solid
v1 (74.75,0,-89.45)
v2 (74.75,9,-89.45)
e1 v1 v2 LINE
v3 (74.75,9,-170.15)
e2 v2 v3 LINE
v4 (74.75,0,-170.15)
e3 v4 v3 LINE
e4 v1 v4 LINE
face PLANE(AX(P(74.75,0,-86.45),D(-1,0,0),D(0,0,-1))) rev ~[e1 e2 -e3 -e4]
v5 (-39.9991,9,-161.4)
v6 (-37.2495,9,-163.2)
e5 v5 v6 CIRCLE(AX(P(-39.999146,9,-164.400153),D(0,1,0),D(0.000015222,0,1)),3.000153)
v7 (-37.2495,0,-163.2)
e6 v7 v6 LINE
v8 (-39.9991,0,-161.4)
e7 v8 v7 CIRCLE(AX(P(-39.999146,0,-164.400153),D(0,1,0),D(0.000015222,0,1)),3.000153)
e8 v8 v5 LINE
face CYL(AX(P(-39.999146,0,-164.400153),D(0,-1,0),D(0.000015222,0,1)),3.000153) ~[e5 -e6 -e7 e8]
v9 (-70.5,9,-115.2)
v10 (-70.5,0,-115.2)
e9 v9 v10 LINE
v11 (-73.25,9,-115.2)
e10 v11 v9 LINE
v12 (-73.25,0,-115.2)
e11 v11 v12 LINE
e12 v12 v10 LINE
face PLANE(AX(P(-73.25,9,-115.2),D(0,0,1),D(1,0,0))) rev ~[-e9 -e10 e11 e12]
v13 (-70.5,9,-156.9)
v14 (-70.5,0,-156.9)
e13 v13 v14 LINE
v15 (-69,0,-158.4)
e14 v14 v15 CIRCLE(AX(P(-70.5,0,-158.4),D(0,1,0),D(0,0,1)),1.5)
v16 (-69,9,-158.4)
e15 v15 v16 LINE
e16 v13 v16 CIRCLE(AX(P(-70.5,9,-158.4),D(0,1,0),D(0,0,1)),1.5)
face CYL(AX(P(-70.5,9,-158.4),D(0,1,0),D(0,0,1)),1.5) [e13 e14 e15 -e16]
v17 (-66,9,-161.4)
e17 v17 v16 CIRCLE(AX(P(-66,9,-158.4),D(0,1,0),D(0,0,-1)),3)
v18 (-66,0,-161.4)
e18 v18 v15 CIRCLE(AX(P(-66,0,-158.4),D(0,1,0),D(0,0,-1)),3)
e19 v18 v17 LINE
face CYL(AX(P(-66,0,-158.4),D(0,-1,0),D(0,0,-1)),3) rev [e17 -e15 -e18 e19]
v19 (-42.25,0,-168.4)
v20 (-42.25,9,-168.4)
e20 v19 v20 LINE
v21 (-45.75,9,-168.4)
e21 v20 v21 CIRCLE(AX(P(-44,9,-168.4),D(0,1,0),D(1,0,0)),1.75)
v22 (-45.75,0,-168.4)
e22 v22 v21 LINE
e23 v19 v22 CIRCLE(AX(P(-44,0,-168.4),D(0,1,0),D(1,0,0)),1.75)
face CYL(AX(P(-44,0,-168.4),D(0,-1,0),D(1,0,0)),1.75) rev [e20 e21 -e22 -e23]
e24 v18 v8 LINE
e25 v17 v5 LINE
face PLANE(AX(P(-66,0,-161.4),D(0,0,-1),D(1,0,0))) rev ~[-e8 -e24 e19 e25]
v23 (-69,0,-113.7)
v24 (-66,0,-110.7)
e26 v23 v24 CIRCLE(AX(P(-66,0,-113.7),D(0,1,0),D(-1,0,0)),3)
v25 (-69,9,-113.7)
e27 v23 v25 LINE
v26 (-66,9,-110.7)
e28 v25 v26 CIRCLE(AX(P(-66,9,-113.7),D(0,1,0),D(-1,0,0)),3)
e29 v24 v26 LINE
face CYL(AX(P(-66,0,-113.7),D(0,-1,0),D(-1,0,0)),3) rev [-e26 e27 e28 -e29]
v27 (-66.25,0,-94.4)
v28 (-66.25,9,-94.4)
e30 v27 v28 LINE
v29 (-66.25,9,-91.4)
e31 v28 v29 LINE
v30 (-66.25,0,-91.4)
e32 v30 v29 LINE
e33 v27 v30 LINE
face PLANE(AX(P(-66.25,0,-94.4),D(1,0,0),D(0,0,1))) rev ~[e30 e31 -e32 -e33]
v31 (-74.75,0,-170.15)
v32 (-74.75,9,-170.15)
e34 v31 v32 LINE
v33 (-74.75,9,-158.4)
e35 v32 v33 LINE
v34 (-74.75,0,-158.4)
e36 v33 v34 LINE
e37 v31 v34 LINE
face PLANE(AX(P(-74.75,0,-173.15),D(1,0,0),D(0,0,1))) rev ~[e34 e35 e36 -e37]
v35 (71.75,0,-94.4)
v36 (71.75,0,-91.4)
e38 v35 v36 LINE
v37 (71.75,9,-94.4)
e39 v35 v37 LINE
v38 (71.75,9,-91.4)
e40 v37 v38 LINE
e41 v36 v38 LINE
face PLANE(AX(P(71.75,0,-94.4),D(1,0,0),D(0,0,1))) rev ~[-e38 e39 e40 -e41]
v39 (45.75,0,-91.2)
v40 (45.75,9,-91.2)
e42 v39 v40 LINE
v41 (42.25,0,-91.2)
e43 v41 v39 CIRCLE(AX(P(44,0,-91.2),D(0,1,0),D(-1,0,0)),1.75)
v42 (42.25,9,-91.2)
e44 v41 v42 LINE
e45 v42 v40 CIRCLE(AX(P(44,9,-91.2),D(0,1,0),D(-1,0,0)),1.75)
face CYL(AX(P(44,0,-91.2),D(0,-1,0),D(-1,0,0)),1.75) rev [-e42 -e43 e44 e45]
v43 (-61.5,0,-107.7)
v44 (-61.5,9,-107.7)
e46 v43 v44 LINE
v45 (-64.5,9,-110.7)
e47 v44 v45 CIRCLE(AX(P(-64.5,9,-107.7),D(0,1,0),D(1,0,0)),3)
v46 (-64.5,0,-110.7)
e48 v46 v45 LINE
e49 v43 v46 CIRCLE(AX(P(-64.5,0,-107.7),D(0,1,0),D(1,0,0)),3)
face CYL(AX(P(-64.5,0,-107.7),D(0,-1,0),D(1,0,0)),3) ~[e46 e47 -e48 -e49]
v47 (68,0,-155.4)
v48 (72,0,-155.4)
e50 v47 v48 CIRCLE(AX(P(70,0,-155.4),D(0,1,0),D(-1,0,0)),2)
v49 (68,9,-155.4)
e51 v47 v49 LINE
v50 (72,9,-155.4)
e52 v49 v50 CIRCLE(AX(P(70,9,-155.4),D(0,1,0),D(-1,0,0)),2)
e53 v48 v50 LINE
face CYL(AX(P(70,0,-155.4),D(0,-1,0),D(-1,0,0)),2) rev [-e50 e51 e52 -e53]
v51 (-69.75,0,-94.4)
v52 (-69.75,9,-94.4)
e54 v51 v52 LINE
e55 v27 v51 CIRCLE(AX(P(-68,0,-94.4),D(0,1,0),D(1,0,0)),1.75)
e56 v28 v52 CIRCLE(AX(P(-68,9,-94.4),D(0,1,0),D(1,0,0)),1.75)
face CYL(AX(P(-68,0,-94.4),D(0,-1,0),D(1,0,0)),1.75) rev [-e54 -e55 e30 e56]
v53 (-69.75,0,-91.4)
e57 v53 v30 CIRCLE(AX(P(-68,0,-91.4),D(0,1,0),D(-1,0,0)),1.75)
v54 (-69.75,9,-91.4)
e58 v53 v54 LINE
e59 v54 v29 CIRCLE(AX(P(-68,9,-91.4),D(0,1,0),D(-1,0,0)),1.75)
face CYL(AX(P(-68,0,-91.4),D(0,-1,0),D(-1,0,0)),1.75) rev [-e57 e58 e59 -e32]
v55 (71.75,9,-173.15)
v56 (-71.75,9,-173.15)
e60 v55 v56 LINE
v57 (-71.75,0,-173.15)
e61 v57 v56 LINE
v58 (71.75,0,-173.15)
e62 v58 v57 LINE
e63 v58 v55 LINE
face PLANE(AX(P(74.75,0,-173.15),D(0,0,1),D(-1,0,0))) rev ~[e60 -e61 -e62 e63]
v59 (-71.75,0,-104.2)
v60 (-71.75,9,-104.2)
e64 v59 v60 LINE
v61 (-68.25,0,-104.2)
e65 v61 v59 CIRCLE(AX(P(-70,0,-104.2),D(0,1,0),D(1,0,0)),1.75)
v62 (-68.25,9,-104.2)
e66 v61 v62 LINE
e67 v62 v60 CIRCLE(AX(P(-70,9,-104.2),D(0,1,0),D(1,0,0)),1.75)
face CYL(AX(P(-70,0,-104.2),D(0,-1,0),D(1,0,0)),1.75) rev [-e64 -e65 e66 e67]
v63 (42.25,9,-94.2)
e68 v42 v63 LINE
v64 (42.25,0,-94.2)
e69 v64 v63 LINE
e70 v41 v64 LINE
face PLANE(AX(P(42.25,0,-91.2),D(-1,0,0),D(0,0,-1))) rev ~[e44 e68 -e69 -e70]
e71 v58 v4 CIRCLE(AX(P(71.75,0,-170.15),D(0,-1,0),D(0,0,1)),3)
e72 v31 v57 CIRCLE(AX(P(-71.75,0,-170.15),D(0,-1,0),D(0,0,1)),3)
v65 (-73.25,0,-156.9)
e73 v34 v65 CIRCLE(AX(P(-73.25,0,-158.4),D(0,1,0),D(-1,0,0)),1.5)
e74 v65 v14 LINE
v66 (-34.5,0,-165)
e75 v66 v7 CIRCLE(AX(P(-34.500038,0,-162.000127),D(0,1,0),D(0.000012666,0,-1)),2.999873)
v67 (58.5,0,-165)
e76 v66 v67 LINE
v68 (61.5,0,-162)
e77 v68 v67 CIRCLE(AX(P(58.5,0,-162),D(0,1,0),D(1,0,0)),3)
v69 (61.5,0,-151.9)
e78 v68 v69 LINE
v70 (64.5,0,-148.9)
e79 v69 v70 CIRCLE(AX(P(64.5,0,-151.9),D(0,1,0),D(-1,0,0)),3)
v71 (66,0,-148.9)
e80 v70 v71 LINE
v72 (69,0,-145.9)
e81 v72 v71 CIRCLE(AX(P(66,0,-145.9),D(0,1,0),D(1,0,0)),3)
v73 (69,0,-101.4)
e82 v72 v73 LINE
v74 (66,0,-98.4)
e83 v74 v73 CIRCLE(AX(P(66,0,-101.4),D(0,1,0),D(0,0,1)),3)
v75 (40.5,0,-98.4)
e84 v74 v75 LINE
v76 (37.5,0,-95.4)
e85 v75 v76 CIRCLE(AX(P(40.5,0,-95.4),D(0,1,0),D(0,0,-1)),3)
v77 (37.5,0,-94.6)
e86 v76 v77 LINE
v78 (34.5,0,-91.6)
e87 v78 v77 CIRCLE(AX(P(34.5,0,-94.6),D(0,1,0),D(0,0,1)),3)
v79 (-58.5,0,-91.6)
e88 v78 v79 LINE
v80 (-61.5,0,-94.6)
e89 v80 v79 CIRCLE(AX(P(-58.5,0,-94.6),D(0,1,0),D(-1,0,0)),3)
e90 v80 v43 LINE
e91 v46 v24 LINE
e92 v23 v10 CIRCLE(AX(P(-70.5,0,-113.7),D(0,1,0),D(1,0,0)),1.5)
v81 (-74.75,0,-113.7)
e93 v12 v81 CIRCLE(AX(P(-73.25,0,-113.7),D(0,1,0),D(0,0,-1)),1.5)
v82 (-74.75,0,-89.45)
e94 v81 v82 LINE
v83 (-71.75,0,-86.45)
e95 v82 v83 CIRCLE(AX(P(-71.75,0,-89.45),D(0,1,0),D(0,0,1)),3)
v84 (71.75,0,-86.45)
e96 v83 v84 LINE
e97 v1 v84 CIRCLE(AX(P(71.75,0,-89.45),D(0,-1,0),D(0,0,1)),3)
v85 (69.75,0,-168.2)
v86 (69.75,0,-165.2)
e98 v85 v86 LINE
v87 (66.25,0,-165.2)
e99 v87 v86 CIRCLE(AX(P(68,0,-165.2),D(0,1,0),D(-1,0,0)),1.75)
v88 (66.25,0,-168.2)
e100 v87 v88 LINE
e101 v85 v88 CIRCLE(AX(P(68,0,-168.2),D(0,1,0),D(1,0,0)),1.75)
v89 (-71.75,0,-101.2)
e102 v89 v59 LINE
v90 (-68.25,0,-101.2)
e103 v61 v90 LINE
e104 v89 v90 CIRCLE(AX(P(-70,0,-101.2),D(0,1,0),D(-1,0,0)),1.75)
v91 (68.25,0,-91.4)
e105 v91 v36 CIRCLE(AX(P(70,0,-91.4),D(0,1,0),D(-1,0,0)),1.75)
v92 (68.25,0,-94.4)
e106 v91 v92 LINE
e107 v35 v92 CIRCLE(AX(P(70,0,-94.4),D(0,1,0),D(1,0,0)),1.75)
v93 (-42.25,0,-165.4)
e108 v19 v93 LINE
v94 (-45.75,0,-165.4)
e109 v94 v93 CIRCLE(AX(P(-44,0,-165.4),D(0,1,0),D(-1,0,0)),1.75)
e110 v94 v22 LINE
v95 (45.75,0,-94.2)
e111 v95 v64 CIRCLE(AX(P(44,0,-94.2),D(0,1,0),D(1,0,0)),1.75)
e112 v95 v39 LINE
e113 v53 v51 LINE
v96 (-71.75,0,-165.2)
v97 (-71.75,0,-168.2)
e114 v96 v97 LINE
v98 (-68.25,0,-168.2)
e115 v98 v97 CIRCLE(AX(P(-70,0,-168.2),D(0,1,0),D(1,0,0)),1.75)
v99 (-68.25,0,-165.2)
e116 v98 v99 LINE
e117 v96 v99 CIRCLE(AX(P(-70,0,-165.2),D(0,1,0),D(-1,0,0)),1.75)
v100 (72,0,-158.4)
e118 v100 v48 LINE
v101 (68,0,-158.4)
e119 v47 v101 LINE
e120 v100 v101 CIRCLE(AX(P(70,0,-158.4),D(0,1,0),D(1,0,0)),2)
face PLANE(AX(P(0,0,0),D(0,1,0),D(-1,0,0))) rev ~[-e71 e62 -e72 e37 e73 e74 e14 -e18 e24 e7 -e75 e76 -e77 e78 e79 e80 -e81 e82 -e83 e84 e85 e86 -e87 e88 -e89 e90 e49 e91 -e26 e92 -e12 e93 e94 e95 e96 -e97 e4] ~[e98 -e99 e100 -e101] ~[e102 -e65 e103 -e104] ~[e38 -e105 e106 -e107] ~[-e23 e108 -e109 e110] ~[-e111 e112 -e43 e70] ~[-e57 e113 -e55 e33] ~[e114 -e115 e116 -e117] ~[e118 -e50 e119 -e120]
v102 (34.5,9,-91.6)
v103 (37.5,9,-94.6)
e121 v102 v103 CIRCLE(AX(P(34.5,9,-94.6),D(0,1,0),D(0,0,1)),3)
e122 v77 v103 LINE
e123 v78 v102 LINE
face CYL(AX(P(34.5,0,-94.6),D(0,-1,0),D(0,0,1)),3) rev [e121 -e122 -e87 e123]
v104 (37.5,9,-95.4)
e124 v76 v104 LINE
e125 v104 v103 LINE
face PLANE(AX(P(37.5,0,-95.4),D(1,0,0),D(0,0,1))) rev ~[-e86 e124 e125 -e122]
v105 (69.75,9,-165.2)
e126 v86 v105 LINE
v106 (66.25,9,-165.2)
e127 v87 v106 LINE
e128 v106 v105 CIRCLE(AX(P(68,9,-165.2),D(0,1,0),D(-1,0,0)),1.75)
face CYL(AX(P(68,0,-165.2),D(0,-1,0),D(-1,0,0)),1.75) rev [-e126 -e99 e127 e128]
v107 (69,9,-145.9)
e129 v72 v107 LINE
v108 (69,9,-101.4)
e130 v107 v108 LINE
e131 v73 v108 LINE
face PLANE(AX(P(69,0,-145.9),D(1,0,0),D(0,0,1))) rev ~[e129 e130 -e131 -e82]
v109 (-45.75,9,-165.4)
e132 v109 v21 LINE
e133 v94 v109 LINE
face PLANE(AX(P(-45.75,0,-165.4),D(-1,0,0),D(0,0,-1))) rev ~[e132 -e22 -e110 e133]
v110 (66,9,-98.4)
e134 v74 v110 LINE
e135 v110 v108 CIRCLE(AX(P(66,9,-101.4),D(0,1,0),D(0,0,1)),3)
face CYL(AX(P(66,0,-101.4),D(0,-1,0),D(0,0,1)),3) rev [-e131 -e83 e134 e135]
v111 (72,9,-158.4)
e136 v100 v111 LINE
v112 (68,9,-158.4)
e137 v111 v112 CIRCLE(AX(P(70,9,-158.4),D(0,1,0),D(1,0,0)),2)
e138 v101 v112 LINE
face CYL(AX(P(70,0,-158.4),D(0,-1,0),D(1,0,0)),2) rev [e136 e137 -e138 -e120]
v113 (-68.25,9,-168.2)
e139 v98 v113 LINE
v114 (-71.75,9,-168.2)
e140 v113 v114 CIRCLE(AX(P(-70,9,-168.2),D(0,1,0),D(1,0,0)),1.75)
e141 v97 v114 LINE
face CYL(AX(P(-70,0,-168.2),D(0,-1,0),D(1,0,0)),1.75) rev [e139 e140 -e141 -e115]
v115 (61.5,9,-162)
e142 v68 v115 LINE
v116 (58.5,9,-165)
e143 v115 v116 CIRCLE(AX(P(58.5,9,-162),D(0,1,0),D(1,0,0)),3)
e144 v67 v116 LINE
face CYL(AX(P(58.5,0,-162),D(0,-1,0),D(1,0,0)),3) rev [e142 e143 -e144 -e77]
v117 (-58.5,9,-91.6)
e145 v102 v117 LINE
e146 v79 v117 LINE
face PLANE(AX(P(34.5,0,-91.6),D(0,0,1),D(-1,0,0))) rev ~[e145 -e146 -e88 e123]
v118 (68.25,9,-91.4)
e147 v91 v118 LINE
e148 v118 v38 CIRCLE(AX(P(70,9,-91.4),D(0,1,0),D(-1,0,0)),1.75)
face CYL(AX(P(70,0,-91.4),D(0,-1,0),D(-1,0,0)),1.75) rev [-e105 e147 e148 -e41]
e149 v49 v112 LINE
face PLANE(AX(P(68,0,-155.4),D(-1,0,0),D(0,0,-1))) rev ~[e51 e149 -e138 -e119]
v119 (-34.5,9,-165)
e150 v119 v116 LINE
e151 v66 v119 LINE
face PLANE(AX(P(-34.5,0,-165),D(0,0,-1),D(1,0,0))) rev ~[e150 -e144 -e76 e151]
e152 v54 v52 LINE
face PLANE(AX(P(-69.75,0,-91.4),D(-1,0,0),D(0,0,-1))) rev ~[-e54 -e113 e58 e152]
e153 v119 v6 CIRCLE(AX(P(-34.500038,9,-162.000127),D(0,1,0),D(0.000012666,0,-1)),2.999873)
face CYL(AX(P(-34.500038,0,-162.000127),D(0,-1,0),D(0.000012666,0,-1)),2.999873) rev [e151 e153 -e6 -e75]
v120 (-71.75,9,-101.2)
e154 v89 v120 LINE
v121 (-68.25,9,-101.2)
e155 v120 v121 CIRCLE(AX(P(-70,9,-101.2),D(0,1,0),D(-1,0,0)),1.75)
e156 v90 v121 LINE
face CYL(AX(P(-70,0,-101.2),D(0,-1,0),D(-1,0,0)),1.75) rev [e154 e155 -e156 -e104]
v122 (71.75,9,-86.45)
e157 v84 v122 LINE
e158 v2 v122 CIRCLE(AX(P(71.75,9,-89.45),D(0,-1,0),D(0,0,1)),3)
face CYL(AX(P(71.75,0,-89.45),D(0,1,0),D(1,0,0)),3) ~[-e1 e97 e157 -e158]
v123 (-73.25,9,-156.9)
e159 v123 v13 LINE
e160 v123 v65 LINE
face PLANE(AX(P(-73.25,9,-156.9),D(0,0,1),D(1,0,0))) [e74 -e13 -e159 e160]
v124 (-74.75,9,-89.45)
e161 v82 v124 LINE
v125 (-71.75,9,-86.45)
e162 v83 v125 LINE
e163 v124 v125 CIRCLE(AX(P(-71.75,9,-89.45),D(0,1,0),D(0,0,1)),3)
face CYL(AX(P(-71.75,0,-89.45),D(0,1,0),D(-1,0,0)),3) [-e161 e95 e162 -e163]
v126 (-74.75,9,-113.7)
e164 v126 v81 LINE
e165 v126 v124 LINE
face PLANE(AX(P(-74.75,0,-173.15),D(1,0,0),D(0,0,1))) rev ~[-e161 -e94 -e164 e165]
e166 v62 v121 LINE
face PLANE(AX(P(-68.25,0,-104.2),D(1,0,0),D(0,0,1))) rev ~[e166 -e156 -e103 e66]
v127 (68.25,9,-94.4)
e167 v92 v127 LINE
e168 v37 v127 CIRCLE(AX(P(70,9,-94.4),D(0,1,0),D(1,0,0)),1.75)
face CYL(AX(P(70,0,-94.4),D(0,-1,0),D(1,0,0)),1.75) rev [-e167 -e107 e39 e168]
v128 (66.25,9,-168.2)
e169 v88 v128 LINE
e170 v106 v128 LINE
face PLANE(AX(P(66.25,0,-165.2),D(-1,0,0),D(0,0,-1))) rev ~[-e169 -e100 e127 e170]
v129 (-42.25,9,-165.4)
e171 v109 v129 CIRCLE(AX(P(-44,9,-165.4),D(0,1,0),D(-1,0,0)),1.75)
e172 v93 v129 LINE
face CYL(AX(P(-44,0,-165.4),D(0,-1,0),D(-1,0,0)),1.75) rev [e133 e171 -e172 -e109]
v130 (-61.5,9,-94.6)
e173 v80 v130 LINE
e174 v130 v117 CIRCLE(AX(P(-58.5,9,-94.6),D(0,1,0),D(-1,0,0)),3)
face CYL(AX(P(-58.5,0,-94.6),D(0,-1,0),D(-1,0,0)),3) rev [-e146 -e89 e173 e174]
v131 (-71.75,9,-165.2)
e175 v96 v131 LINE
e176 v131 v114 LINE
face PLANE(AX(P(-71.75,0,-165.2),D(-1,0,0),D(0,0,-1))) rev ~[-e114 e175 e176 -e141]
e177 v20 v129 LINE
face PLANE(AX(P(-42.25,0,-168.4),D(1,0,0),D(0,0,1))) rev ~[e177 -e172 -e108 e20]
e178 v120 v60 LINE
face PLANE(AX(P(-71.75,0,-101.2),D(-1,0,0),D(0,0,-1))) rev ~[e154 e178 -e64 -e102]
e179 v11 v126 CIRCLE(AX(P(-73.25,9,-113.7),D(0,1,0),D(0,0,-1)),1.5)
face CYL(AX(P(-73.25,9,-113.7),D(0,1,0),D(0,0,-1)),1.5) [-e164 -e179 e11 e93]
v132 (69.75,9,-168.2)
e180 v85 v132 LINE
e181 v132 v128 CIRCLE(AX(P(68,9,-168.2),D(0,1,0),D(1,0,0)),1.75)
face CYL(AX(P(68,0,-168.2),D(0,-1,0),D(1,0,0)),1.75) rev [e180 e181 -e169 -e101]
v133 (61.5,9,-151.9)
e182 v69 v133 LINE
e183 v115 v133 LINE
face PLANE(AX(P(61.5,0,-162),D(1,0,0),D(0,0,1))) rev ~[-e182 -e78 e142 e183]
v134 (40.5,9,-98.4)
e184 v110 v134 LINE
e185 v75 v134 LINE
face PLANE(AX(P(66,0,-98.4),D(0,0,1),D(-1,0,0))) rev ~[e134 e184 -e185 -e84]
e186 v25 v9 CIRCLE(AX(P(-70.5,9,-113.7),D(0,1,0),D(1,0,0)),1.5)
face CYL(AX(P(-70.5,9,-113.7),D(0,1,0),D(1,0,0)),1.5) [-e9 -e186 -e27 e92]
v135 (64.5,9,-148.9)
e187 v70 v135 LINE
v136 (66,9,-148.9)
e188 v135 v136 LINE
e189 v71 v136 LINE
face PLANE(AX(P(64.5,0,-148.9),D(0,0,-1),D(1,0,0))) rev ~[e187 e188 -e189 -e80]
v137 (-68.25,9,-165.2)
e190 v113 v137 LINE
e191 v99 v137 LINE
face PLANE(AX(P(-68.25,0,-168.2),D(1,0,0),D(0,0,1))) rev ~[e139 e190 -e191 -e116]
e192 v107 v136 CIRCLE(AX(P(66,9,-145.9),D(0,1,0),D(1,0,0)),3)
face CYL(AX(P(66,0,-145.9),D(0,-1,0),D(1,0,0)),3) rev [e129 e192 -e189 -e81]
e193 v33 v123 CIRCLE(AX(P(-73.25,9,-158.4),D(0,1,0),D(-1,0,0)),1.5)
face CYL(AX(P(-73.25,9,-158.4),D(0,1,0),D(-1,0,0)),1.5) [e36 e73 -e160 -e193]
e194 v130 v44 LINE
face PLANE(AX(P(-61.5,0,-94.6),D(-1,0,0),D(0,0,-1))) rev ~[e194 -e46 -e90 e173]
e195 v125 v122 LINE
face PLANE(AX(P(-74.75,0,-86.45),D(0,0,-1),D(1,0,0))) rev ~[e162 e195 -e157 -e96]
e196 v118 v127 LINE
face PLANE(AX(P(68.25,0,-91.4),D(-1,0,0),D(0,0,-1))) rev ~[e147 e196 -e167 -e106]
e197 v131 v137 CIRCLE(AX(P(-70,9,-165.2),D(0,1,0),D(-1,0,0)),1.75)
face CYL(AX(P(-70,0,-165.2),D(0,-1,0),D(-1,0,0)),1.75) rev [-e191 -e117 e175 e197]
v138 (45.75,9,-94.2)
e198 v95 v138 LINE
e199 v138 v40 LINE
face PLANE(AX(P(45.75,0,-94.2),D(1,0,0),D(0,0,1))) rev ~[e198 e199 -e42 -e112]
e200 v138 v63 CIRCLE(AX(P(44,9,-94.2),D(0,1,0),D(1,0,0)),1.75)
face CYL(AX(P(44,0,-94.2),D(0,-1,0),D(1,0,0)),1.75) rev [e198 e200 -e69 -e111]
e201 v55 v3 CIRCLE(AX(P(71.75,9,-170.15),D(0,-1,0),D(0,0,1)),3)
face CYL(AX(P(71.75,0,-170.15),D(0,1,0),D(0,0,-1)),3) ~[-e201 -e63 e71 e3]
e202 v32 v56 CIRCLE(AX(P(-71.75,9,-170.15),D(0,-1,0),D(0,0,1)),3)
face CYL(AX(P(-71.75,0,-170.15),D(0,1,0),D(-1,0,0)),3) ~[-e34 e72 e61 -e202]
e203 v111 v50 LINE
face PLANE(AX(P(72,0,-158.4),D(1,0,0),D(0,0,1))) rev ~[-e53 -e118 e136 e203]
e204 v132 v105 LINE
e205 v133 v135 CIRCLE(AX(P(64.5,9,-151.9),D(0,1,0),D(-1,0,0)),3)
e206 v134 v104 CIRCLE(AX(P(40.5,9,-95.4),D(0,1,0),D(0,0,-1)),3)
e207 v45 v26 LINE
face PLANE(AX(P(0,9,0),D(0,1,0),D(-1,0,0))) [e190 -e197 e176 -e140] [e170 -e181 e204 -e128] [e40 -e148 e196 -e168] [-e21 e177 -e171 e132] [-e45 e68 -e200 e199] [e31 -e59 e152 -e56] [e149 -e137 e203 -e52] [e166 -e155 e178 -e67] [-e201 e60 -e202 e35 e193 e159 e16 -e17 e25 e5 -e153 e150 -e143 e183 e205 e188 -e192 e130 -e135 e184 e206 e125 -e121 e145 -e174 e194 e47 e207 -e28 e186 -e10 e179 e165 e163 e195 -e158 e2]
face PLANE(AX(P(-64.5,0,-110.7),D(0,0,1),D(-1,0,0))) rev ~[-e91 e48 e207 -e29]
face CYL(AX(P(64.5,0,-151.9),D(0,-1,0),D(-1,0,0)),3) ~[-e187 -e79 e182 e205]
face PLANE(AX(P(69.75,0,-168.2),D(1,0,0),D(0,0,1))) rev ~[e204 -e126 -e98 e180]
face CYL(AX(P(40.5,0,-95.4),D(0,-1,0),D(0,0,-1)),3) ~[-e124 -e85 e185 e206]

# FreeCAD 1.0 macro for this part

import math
import FreeCAD as App
import Part
import Sketcher


def edges_at(feature, points):
    """Names of the edges that pass closest to the given points."""
    edges = feature.Shape.Edges
    near = lambda p: min(range(len(edges)), key=lambda i: edges[i].distToShape(Part.Vertex(*p))[0])
    return sorted({f"Edge{near(p) + 1}" for p in points})

doc = App.newDocument("Part")
params = doc.addObject("Spreadsheet::Sheet", "Params")
for row, (alias, value) in enumerate([
    ("sketch1_radius", "2 mm"),
    ("sketch1_radius2", "3 mm"),
    ("sketch1_height", "3 mm"),
    ("sketch1_radius3", "1.75 mm"),
    ("sketch1_height2", "44.7 mm"),
    ("pad1_length", "9 mm"),
    ("fillet_radius", "3 mm"),
    ("sketch2_radius", "1.5 mm"),
    ("sketch2_height", "44.7 mm"),
    ("sketch2_width", "2.75 mm"),
    ("pocket1_length", "9 mm"),
], start=1):
    params.set(f"A{row}", alias)
    params.set(f"B{row}", "=" + value)
    params.setAlias(f"B{row}", alias)

body = doc.addObject("PartDesign::Body", "Body")

# Sketch on XZ plane
sketch1 = body.newObject("Sketcher::SketchObject", "Sketch")
sketch1.AttachmentSupport = (doc.getObject("XZ_Plane"), [""])
sketch1.MapMode = "FlatFace"
sketch1.addGeometry(Part.LineSegment(App.Vector(-74.8, -173.2, 0), App.Vector(-74.8, -86.5, 0)), False)
sketch1.addGeometry(Part.LineSegment(App.Vector(-74.8, -86.5, 0), App.Vector(74.8, -86.5, 0)), False)
sketch1.addGeometry(Part.LineSegment(App.Vector(74.8, -86.5, 0), App.Vector(74.8, -173.2, 0)), False)
sketch1.addGeometry(Part.LineSegment(App.Vector(74.8, -173.2, 0), App.Vector(-74.8, -173.2, 0)), False)
sketch1.addGeometry(Part.ArcOfCircle(Part.Circle(App.Vector(68, -165.2, 0), App.Vector(0, 0, 1), 1.8), math.radians(0), math.radians(180)), False)
sketch1.addGeometry(Part.LineSegment(App.Vector(66.2, -165.2, 0), App.Vector(66.2, -168.2, 0)), False)
sketch1.addGeometry(Part.ArcOfCircle(Part.Circle(App.Vector(68, -168.2, 0), App.Vector(0, 0, 1), 1.8), math.radians(180), math.radians(360)), False)
sketch1.addGeometry(Part.LineSegment(App.Vector(69.8, -168.2, 0), App.Vector(69.8, -165.2, 0)), False)
sketch1.addGeometry(Part.ArcOfCircle(Part.Circle(App.Vector(70, -155.4, 0), App.Vector(0, 0, 1), 2), math.radians(0), math.radians(180)), False)
sketch1.addGeometry(Part.LineSegment(App.Vector(68, -155.4, 0), App.Vector(68, -158.4, 0)), False)
sketch1.addGeometry(Part.ArcOfCircle(Part.Circle(App.Vector(70, -158.4, 0), App.Vector(0, 0, 1), 2), math.radians(180), math.radians(360)), False)
sketch1.addGeometry(Part.LineSegment(App.Vector(72, -158.4, 0), App.Vector(72, -155.4, 0)), False)
sketch1.addGeometry(Part.ArcOfCircle(Part.Circle(App.Vector(-44, -165.4, 0), App.Vector(0, 0, 1), 1.8), math.radians(0), math.radians(180)), False)
sketch1.addGeometry(Part.LineSegment(App.Vector(-45.8, -165.4, 0), App.Vector(-45.8, -168.4, 0)), False)
sketch1.addGeometry(Part.ArcOfCircle(Part.Circle(App.Vector(-44, -168.4, 0), App.Vector(0, 0, 1), 1.8), math.radians(180), math.radians(360)), False)
sketch1.addGeometry(Part.LineSegment(App.Vector(-42.2, -168.4, 0), App.Vector(-42.2, -165.4, 0)), False)
sketch1.addGeometry(Part.ArcOfCircle(Part.Circle(App.Vector(-70, -165.2, 0), App.Vector(0, 0, 1), 1.8), math.radians(0), math.radians(180)), False)
sketch1.addGeometry(Part.LineSegment(App.Vector(-71.8, -165.2, 0), App.Vector(-71.8, -168.2, 0)), False)
sketch1.addGeometry(Part.ArcOfCircle(Part.Circle(App.Vector(-70, -168.2, 0), App.Vector(0, 0, 1), 1.8), math.radians(180), math.radians(360)), False)
sketch1.addGeometry(Part.LineSegment(App.Vector(-68.2, -168.2, 0), App.Vector(-68.2, -165.2, 0)), False)
sketch1.addGeometry(Part.ArcOfCircle(Part.Circle(App.Vector(70, -94.4, 0), App.Vector(0, 0, 1), 1.8), math.radians(180), math.radians(360)), False)
sketch1.addGeometry(Part.LineSegment(App.Vector(71.8, -94.4, 0), App.Vector(71.8, -91.4, 0)), False)
sketch1.addGeometry(Part.ArcOfCircle(Part.Circle(App.Vector(70, -91.4, 0), App.Vector(0, 0, 1), 1.8), math.radians(0), math.radians(180)), False)
sketch1.addGeometry(Part.LineSegment(App.Vector(68.2, -91.4, 0), App.Vector(68.2, -94.4, 0)), False)
sketch1.addGeometry(Part.ArcOfCircle(Part.Circle(App.Vector(44, -94.2, 0), App.Vector(0, 0, 1), 1.8), math.radians(180), math.radians(360)), False)
sketch1.addGeometry(Part.LineSegment(App.Vector(45.8, -94.2, 0), App.Vector(45.8, -91.2, 0)), False)
sketch1.addGeometry(Part.ArcOfCircle(Part.Circle(App.Vector(44, -91.2, 0), App.Vector(0, 0, 1), 1.8), math.radians(0), math.radians(180)), False)
sketch1.addGeometry(Part.LineSegment(App.Vector(42.2, -91.2, 0), App.Vector(42.2, -94.2, 0)), False)
sketch1.addGeometry(Part.ArcOfCircle(Part.Circle(App.Vector(66, -145.9, 0), App.Vector(0, 0, 1), 3), math.radians(-90), math.radians(0)), False)
sketch1.addGeometry(Part.LineSegment(App.Vector(69, -145.9, 0), App.Vector(69, -101.4, 0)), False)
sketch1.addGeometry(Part.ArcOfCircle(Part.Circle(App.Vector(66, -101.4, 0), App.Vector(0, 0, 1), 3), math.radians(0), math.radians(90)), False)
sketch1.addGeometry(Part.LineSegment(App.Vector(66, -98.4, 0), App.Vector(40.5, -98.4, 0)), False)
sketch1.addGeometry(Part.ArcOfCircle(Part.Circle(App.Vector(40.5, -95.4, 0), App.Vector(0, 0, 1), 3), math.radians(180), math.radians(270)), False)
sketch1.addGeometry(Part.LineSegment(App.Vector(37.5, -95.4, 0), App.Vector(37.5, -94.6, 0)), False)
sketch1.addGeometry(Part.ArcOfCircle(Part.Circle(App.Vector(34.5, -94.6, 0), App.Vector(0, 0, 1), 3), math.radians(0), math.radians(90)), False)
sketch1.addGeometry(Part.LineSegment(App.Vector(34.5, -91.6, 0), App.Vector(-58.5, -91.6, 0)), False)
sketch1.addGeometry(Part.ArcOfCircle(Part.Circle(App.Vector(-58.5, -94.6, 0), App.Vector(0, 0, 1), 3), math.radians(90), math.radians(180)), False)
sketch1.addGeometry(Part.LineSegment(App.Vector(-61.5, -94.6, 0), App.Vector(-61.5, -107.7, 0)), False)
sketch1.addGeometry(Part.ArcOfCircle(Part.Circle(App.Vector(-64.5, -107.7, 0), App.Vector(0, 0, 1), 3), math.radians(-90), math.radians(0)), False)
sketch1.addGeometry(Part.LineSegment(App.Vector(-64.5, -110.7, 0), App.Vector(-66, -110.7, 0)), False)
sketch1.addGeometry(Part.ArcOfCircle(Part.Circle(App.Vector(-66, -113.7, 0), App.Vector(0, 0, 1), 3), math.radians(90), math.radians(180)), False)
sketch1.addGeometry(Part.LineSegment(App.Vector(-69, -113.7, 0), App.Vector(-69, -158.4, 0)), False)
sketch1.addGeometry(Part.ArcOfCircle(Part.Circle(App.Vector(-66, -158.4, 0), App.Vector(0, 0, 1), 3), math.radians(180), math.radians(270)), False)
sketch1.addGeometry(Part.LineSegment(App.Vector(-66, -161.4, 0), App.Vector(-40, -161.4, 0)), False)
sketch1.addGeometry(Part.ArcOfCircle(Part.Circle(App.Vector(-40, -164.4, 0), App.Vector(0, 0, 1), 3), math.radians(24), math.radians(90)), False)
sketch1.addGeometry(Part.ArcOfCircle(Part.Circle(App.Vector(-34.5, -162, 0), App.Vector(0, 0, 1), 3), math.radians(-156), math.radians(-90)), False)
sketch1.addGeometry(Part.LineSegment(App.Vector(-34.5, -165, 0), App.Vector(58.5, -165, 0)), False)
sketch1.addGeometry(Part.ArcOfCircle(Part.Circle(App.Vector(58.5, -162, 0), App.Vector(0, 0, 1), 3), math.radians(-90), math.radians(0)), False)
sketch1.addGeometry(Part.LineSegment(App.Vector(61.5, -162, 0), App.Vector(61.5, -151.9, 0)), False)
sketch1.addGeometry(Part.ArcOfCircle(Part.Circle(App.Vector(64.5, -151.9, 0), App.Vector(0, 0, 1), 3), math.radians(90), math.radians(180)), False)
sketch1.addGeometry(Part.LineSegment(App.Vector(64.5, -148.9, 0), App.Vector(66, -148.9, 0)), False)
sketch1.addGeometry(Part.ArcOfCircle(Part.Circle(App.Vector(-70, -101.2, 0), App.Vector(0, 0, 1), 1.8), math.radians(0), math.radians(180)), False)
sketch1.addGeometry(Part.LineSegment(App.Vector(-71.8, -101.2, 0), App.Vector(-71.8, -104.2, 0)), False)
sketch1.addGeometry(Part.ArcOfCircle(Part.Circle(App.Vector(-70, -104.2, 0), App.Vector(0, 0, 1), 1.8), math.radians(180), math.radians(360)), False)
sketch1.addGeometry(Part.LineSegment(App.Vector(-68.2, -104.2, 0), App.Vector(-68.2, -101.2, 0)), False)
sketch1.addGeometry(Part.ArcOfCircle(Part.Circle(App.Vector(-68, -94.4, 0), App.Vector(0, 0, 1), 1.8), math.radians(180), math.radians(360)), False)
sketch1.addGeometry(Part.LineSegment(App.Vector(-66.2, -94.4, 0), App.Vector(-66.2, -91.4, 0)), False)
sketch1.addGeometry(Part.ArcOfCircle(Part.Circle(App.Vector(-68, -91.4, 0), App.Vector(0, 0, 1), 1.8), math.radians(0), math.radians(180)), False)
sketch1.addGeometry(Part.LineSegment(App.Vector(-69.8, -91.4, 0), App.Vector(-69.8, -94.4, 0)), False)
sketch1.addConstraint(Sketcher.Constraint("Coincident", 0, 2, 1, 1))
sketch1.addConstraint(Sketcher.Constraint("Coincident", 1, 2, 2, 1))
sketch1.addConstraint(Sketcher.Constraint("Coincident", 2, 2, 3, 1))
sketch1.addConstraint(Sketcher.Constraint("Coincident", 3, 2, 0, 1))
sketch1.addConstraint(Sketcher.Constraint("Tangent", 4, 2, 5, 1))
sketch1.addConstraint(Sketcher.Constraint("Tangent", 5, 2, 6, 1))
sketch1.addConstraint(Sketcher.Constraint("Tangent", 6, 2, 7, 1))
sketch1.addConstraint(Sketcher.Constraint("Tangent", 7, 2, 4, 1))
sketch1.addConstraint(Sketcher.Constraint("Tangent", 8, 2, 9, 1))
sketch1.addConstraint(Sketcher.Constraint("Tangent", 9, 2, 10, 1))
sketch1.addConstraint(Sketcher.Constraint("Tangent", 10, 2, 11, 1))
sketch1.addConstraint(Sketcher.Constraint("Tangent", 11, 2, 8, 1))
sketch1.addConstraint(Sketcher.Constraint("Tangent", 12, 2, 13, 1))
sketch1.addConstraint(Sketcher.Constraint("Tangent", 13, 2, 14, 1))
sketch1.addConstraint(Sketcher.Constraint("Tangent", 14, 2, 15, 1))
sketch1.addConstraint(Sketcher.Constraint("Tangent", 15, 2, 12, 1))
sketch1.addConstraint(Sketcher.Constraint("Tangent", 16, 2, 17, 1))
sketch1.addConstraint(Sketcher.Constraint("Tangent", 17, 2, 18, 1))
sketch1.addConstraint(Sketcher.Constraint("Tangent", 18, 2, 19, 1))
sketch1.addConstraint(Sketcher.Constraint("Tangent", 19, 2, 16, 1))
sketch1.addConstraint(Sketcher.Constraint("Tangent", 20, 2, 21, 1))
sketch1.addConstraint(Sketcher.Constraint("Tangent", 21, 2, 22, 1))
sketch1.addConstraint(Sketcher.Constraint("Tangent", 22, 2, 23, 1))
sketch1.addConstraint(Sketcher.Constraint("Tangent", 23, 2, 20, 1))
sketch1.addConstraint(Sketcher.Constraint("Tangent", 24, 2, 25, 1))
sketch1.addConstraint(Sketcher.Constraint("Tangent", 25, 2, 26, 1))
sketch1.addConstraint(Sketcher.Constraint("Tangent", 26, 2, 27, 1))
sketch1.addConstraint(Sketcher.Constraint("Tangent", 27, 2, 24, 1))
sketch1.addConstraint(Sketcher.Constraint("Tangent", 28, 2, 29, 1))
sketch1.addConstraint(Sketcher.Constraint("Tangent", 29, 2, 30, 1))
sketch1.addConstraint(Sketcher.Constraint("Tangent", 30, 2, 31, 1))
sketch1.addConstraint(Sketcher.Constraint("Tangent", 31, 2, 32, 2))
sketch1.addConstraint(Sketcher.Constraint("Tangent", 32, 1, 33, 1))
sketch1.addConstraint(Sketcher.Constraint("Tangent", 33, 2, 34, 1))
sketch1.addConstraint(Sketcher.Constraint("Tangent", 34, 2, 35, 1))
sketch1.addConstraint(Sketcher.Constraint("Tangent", 35, 2, 36, 1))
sketch1.addConstraint(Sketcher.Constraint("Tangent", 36, 2, 37, 1))
sketch1.addConstraint(Sketcher.Constraint("Tangent", 37, 2, 38, 2))
sketch1.addConstraint(Sketcher.Constraint("Tangent", 38, 1, 39, 1))
sketch1.addConstraint(Sketcher.Constraint("Tangent", 39, 2, 40, 1))
sketch1.addConstraint(Sketcher.Constraint("Tangent", 40, 2, 41, 1))
sketch1.addConstraint(Sketcher.Constraint("Tangent", 41, 2, 42, 1))
sketch1.addConstraint(Sketcher.Constraint("Tangent", 42, 2, 43, 1))
sketch1.addConstraint(Sketcher.Constraint("Tangent", 43, 2, 44, 2))
sketch1.addConstraint(Sketcher.Constraint("Tangent", 44, 1, 45, 1))
sketch1.addConstraint(Sketcher.Constraint("Tangent", 45, 2, 46, 1))
sketch1.addConstraint(Sketcher.Constraint("Tangent", 46, 2, 47, 1))
sketch1.addConstraint(Sketcher.Constraint("Tangent", 47, 2, 48, 1))
sketch1.addConstraint(Sketcher.Constraint("Tangent", 48, 2, 49, 2))
sketch1.addConstraint(Sketcher.Constraint("Tangent", 49, 1, 50, 1))
sketch1.addConstraint(Sketcher.Constraint("Tangent", 50, 2, 28, 1))
sketch1.addConstraint(Sketcher.Constraint("Tangent", 51, 2, 52, 1))
sketch1.addConstraint(Sketcher.Constraint("Tangent", 52, 2, 53, 1))
sketch1.addConstraint(Sketcher.Constraint("Tangent", 53, 2, 54, 1))
sketch1.addConstraint(Sketcher.Constraint("Tangent", 54, 2, 51, 1))
sketch1.addConstraint(Sketcher.Constraint("Tangent", 55, 2, 56, 1))
sketch1.addConstraint(Sketcher.Constraint("Tangent", 56, 2, 57, 1))
sketch1.addConstraint(Sketcher.Constraint("Tangent", 57, 2, 58, 1))
sketch1.addConstraint(Sketcher.Constraint("Tangent", 58, 2, 55, 1))
sketch1.addConstraint(Sketcher.Constraint("Vertical", 0))
sketch1.addConstraint(Sketcher.Constraint("Horizontal", 1))
sketch1.addConstraint(Sketcher.Constraint("Vertical", 2))
sketch1.addConstraint(Sketcher.Constraint("Horizontal", 3))
sketch1.addConstraint(Sketcher.Constraint("Vertical", 5))
sketch1.addConstraint(Sketcher.Constraint("Vertical", 7))
sketch1.addConstraint(Sketcher.Constraint("Vertical", 9))
sketch1.addConstraint(Sketcher.Constraint("Vertical", 11))
sketch1.addConstraint(Sketcher.Constraint("Vertical", 13))
sketch1.addConstraint(Sketcher.Constraint("Vertical", 15))
sketch1.addConstraint(Sketcher.Constraint("Vertical", 17))
sketch1.addConstraint(Sketcher.Constraint("Vertical", 19))
sketch1.addConstraint(Sketcher.Constraint("Vertical", 21))
sketch1.addConstraint(Sketcher.Constraint("Vertical", 23))
sketch1.addConstraint(Sketcher.Constraint("Vertical", 25))
sketch1.addConstraint(Sketcher.Constraint("Vertical", 27))
sketch1.addConstraint(Sketcher.Constraint("Vertical", 29))
sketch1.addConstraint(Sketcher.Constraint("Horizontal", 31))
sketch1.addConstraint(Sketcher.Constraint("Vertical", 33))
sketch1.addConstraint(Sketcher.Constraint("Horizontal", 35))
sketch1.addConstraint(Sketcher.Constraint("Vertical", 37))
sketch1.addConstraint(Sketcher.Constraint("Horizontal", 39))
sketch1.addConstraint(Sketcher.Constraint("Vertical", 41))
sketch1.addConstraint(Sketcher.Constraint("Horizontal", 43))
sketch1.addConstraint(Sketcher.Constraint("Horizontal", 46))
sketch1.addConstraint(Sketcher.Constraint("Vertical", 48))
sketch1.addConstraint(Sketcher.Constraint("Horizontal", 50))
sketch1.addConstraint(Sketcher.Constraint("Vertical", 52))
sketch1.addConstraint(Sketcher.Constraint("Vertical", 54))
sketch1.addConstraint(Sketcher.Constraint("Vertical", 56))
sketch1.addConstraint(Sketcher.Constraint("Vertical", 58))
sketch1.addConstraint(Sketcher.Constraint("Equal", 6, 12))
sketch1.addConstraint(Sketcher.Constraint("Equal", 14, 16))
sketch1.addConstraint(Sketcher.Constraint("Equal", 18, 20))
sketch1.addConstraint(Sketcher.Constraint("Equal", 22, 24))
sketch1.addConstraint(Sketcher.Constraint("Equal", 28, 30))
sketch1.addConstraint(Sketcher.Constraint("Equal", 30, 32))
sketch1.addConstraint(Sketcher.Constraint("Equal", 32, 34))
sketch1.addConstraint(Sketcher.Constraint("Equal", 34, 36))
sketch1.addConstraint(Sketcher.Constraint("Equal", 36, 38))
sketch1.addConstraint(Sketcher.Constraint("Equal", 38, 40))
sketch1.addConstraint(Sketcher.Constraint("Equal", 40, 42))
sketch1.addConstraint(Sketcher.Constraint("Equal", 42, 44))
sketch1.addConstraint(Sketcher.Constraint("Equal", 44, 45))
sketch1.addConstraint(Sketcher.Constraint("Equal", 45, 47))
sketch1.addConstraint(Sketcher.Constraint("Equal", 47, 49))
sketch1.addConstraint(Sketcher.Constraint("Equal", 26, 51))
sketch1.addConstraint(Sketcher.Constraint("Equal", 53, 55))
sketch1.addConstraint(Sketcher.Constraint("Horizontal", 4, 3, 16, 3))
sketch1.addConstraint(Sketcher.Constraint("Horizontal", 6, 3, 18, 3))
sketch1.addConstraint(Sketcher.Constraint("Horizontal", 10, 3, 42, 3))
sketch1.addConstraint(Sketcher.Constraint("Horizontal", 20, 3, 55, 3))
sketch1.addConstraint(Sketcher.Constraint("Horizontal", 22, 3, 57, 3))
sketch1.addConstraint(Sketcher.Constraint("Vertical", 10, 3, 20, 3))
sketch1.addConstraint(Sketcher.Constraint("Vertical", 18, 3, 51, 3))
sketch1.addConstraint(Sketcher.Constraint("Vertical", 6, 3, 8, 2))
sketch1.addConstraint(Sketcher.Constraint("Equal", 35, 46))
sketch1.addConstraint(Sketcher.Constraint("Equal", 39, 50))
sketch1.addConstraint(Sketcher.Constraint("Equal", 7, 9))
sketch1.addConstraint(Sketcher.Constraint("Equal", 11, 13))
sketch1.addConstraint(Sketcher.Constraint("Equal", 19, 21))
sketch1.addConstraint(Sketcher.Constraint("Equal", 23, 25))
sketch1.addConstraint(Sketcher.Constraint("Equal", 27, 52))
sketch1.addConstraint(Sketcher.Constraint("Radius", 8, 2.0))
sketch1.addConstraint(Sketcher.Constraint("Radius", 28, 3.0))
sketch1.addConstraint(Sketcher.Constraint("DistanceY", 5, 2, 5, 1, 3.0))
sketch1.addConstraint(Sketcher.Constraint("Radius", 4, 1.75))
sketch1.addConstraint(Sketcher.Constraint("DistanceY", 41, 2, 41, 1, 44.7))
sketch1.addConstraint(Sketcher.Constraint("DistanceX", 35, 2, 35, 1, 93.0))
sketch1.addConstraint(Sketcher.Constraint("DistanceX", 1, 1, 1, 2, 149.5))
sketch1.addConstraint(Sketcher.Constraint("DistanceX", 31, 2, 31, 1, 25.5))
sketch1.addConstraint(Sketcher.Constraint("DistanceX", 39, 2, 39, 1, 1.5))
sketch1.addConstraint(Sketcher.Constraint("DistanceY", 0, 1, 0, 2, 86.7))
sketch1.addConstraint(Sketcher.Constraint("DistanceY", 29, 1, 29, 2, 44.5))
sketch1.addConstraint(Sketcher.Constraint("DistanceY", 33, 1, 33, 2, 0.8))
sketch1.addConstraint(Sketcher.Constraint("DistanceY", 37, 2, 37, 1, 13.1))
sketch1.addConstraint(Sketcher.Constraint("DistanceY", 48, 1, 48, 2, 10.1))
sketch1.addConstraint(Sketcher.Constraint("DistanceX", -1, 1, 4, 3, 68.0))
sketch1.addConstraint(Sketcher.Constraint("DistanceX", 12, 3, -1, 1, 44.0))
sketch1.addConstraint(Sketcher.Constraint("DistanceX", 16, 3, -1, 1, 70.0))
sketch1.addConstraint(Sketcher.Constraint("DistanceX", -1, 1, 24, 3, 44.0))
sketch1.addConstraint(Sketcher.Constraint("DistanceX", -1, 1, 28, 3, 66.0))
sketch1.addConstraint(Sketcher.Constraint("DistanceY", 45, 3, -1, 1, 162.0))
sketch1.addConstraint(Sketcher.Constraint("DistanceX", 55, 3, -1, 1, 68.0))
sketch1.addConstraint(Sketcher.Constraint("DistanceY", 4, 3, -1, 1, 165.2))
sketch1.addConstraint(Sketcher.Constraint("DistanceY", 12, 3, -1, 1, 165.4))
sketch1.addConstraint(Sketcher.Constraint("DistanceY", 20, 3, -1, 1, 94.4))
sketch1.addConstraint(Sketcher.Constraint("DistanceY", 24, 3, -1, 1, 94.2))
sketch1.addConstraint(Sketcher.Constraint("DistanceY", 51, 3, -1, 1, 101.2))
sketch1.addConstraint(Sketcher.Constraint("DistanceX", 0, 2, -1, 1, 74.75))
sketch1.addConstraint(Sketcher.Constraint("DistanceY", 0, 2, -1, 1, 86.45))
sketch1.setExpression("Constraints[122]", "Params.sketch1_radius")
sketch1.setExpression("Constraints[123]", "Params.sketch1_radius2")
sketch1.setExpression("Constraints[124]", "Params.sketch1_height")
sketch1.setExpression("Constraints[125]", "Params.sketch1_radius3")
sketch1.setExpression("Constraints[126]", "Params.sketch1_height2")
pad1 = body.newObject("PartDesign::Pad", "Pad")
pad1.Profile = sketch1
pad1.setExpression("Length", "Params.pad1_length")
pad1.Reversed = True
doc.recompute()

fillet = body.newObject("PartDesign::Fillet", "Fillet")
fillet.Base = (pad1, edges_at(pad1, [
    (-74.75, 4.5, -86.45),
    (-74.75, 4.5, -173.15),
    (74.75, 4.5, -173.15),
    (74.75, 4.5, -86.45),
]))
fillet.setExpression("Radius", "Params.fillet_radius")

# Sketch on XZ plane
sketch2 = body.newObject("Sketcher::SketchObject", "Sketch001")
sketch2.AttachmentSupport = (doc.getObject("XZ_Plane"), [""])
sketch2.MapMode = "FlatFace"
sketch2.AttachmentOffset = App.Placement(App.Vector(0, 0, -9), App.Rotation())
sketch2.addGeometry(Part.ArcOfCircle(Part.Circle(App.Vector(-70.5, -113.7, 0), App.Vector(0, 0, 1), 1.5), math.radians(-90), math.radians(0)), False)
sketch2.addGeometry(Part.LineSegment(App.Vector(-69, -113.7, 0), App.Vector(-69, -158.4, 0)), False)
sketch2.addGeometry(Part.ArcOfCircle(Part.Circle(App.Vector(-70.5, -158.4, 0), App.Vector(0, 0, 1), 1.5), math.radians(0), math.radians(90)), False)
sketch2.addGeometry(Part.LineSegment(App.Vector(-70.5, -156.9, 0), App.Vector(-73.2, -156.9, 0)), False)
sketch2.addGeometry(Part.ArcOfCircle(Part.Circle(App.Vector(-73.2, -158.4, 0), App.Vector(0, 0, 1), 1.5), math.radians(90), math.radians(180)), False)
sketch2.addGeometry(Part.LineSegment(App.Vector(-74.8, -158.4, 0), App.Vector(-74.8, -113.7, 0)), False)
sketch2.addGeometry(Part.ArcOfCircle(Part.Circle(App.Vector(-73.2, -113.7, 0), App.Vector(0, 0, 1), 1.5), math.radians(180), math.radians(270)), False)
sketch2.addGeometry(Part.LineSegment(App.Vector(-73.2, -115.2, 0), App.Vector(-70.5, -115.2, 0)), False)
sketch2.addConstraint(Sketcher.Constraint("Tangent", 0, 2, 1, 1))
sketch2.addConstraint(Sketcher.Constraint("Tangent", 1, 2, 2, 1))
sketch2.addConstraint(Sketcher.Constraint("Tangent", 2, 2, 3, 1))
sketch2.addConstraint(Sketcher.Constraint("Tangent", 3, 2, 4, 1))
sketch2.addConstraint(Sketcher.Constraint("Tangent", 4, 2, 5, 1))
sketch2.addConstraint(Sketcher.Constraint("Tangent", 5, 2, 6, 1))
sketch2.addConstraint(Sketcher.Constraint("Tangent", 6, 2, 7, 1))
sketch2.addConstraint(Sketcher.Constraint("Tangent", 7, 2, 0, 1))
sketch2.addConstraint(Sketcher.Constraint("Vertical", 1))
sketch2.addConstraint(Sketcher.Constraint("Horizontal", 3))
sketch2.addConstraint(Sketcher.Constraint("Vertical", 5))
sketch2.addConstraint(Sketcher.Constraint("Horizontal", 7))
sketch2.addConstraint(Sketcher.Constraint("Equal", 0, 2))
sketch2.addConstraint(Sketcher.Constraint("Equal", 2, 4))
sketch2.addConstraint(Sketcher.Constraint("Equal", 4, 6))
sketch2.addConstraint(Sketcher.Constraint("Radius", 0, 1.5))
sketch2.addConstraint(Sketcher.Constraint("DistanceY", 1, 2, 1, 1, 44.7))
sketch2.addConstraint(Sketcher.Constraint("DistanceX", 0, 2, -1, 1, 69.0))
sketch2.addConstraint(Sketcher.Constraint("DistanceX", 3, 2, 3, 1, 2.75))
sketch2.addConstraint(Sketcher.Constraint("DistanceY", 0, 3, -1, 1, 113.7))
sketch2.setExpression("Constraints[15]", "Params.sketch2_radius")
sketch2.setExpression("Constraints[16]", "Params.sketch2_height")
sketch2.setExpression("Constraints[18]", "Params.sketch2_width")
pocket1 = body.newObject("PartDesign::Pocket", "Pocket")
pocket1.Profile = sketch2
pocket1.setExpression("Length", "Params.pocket1_length")
pocket1.Reversed = True

doc.recompute()
